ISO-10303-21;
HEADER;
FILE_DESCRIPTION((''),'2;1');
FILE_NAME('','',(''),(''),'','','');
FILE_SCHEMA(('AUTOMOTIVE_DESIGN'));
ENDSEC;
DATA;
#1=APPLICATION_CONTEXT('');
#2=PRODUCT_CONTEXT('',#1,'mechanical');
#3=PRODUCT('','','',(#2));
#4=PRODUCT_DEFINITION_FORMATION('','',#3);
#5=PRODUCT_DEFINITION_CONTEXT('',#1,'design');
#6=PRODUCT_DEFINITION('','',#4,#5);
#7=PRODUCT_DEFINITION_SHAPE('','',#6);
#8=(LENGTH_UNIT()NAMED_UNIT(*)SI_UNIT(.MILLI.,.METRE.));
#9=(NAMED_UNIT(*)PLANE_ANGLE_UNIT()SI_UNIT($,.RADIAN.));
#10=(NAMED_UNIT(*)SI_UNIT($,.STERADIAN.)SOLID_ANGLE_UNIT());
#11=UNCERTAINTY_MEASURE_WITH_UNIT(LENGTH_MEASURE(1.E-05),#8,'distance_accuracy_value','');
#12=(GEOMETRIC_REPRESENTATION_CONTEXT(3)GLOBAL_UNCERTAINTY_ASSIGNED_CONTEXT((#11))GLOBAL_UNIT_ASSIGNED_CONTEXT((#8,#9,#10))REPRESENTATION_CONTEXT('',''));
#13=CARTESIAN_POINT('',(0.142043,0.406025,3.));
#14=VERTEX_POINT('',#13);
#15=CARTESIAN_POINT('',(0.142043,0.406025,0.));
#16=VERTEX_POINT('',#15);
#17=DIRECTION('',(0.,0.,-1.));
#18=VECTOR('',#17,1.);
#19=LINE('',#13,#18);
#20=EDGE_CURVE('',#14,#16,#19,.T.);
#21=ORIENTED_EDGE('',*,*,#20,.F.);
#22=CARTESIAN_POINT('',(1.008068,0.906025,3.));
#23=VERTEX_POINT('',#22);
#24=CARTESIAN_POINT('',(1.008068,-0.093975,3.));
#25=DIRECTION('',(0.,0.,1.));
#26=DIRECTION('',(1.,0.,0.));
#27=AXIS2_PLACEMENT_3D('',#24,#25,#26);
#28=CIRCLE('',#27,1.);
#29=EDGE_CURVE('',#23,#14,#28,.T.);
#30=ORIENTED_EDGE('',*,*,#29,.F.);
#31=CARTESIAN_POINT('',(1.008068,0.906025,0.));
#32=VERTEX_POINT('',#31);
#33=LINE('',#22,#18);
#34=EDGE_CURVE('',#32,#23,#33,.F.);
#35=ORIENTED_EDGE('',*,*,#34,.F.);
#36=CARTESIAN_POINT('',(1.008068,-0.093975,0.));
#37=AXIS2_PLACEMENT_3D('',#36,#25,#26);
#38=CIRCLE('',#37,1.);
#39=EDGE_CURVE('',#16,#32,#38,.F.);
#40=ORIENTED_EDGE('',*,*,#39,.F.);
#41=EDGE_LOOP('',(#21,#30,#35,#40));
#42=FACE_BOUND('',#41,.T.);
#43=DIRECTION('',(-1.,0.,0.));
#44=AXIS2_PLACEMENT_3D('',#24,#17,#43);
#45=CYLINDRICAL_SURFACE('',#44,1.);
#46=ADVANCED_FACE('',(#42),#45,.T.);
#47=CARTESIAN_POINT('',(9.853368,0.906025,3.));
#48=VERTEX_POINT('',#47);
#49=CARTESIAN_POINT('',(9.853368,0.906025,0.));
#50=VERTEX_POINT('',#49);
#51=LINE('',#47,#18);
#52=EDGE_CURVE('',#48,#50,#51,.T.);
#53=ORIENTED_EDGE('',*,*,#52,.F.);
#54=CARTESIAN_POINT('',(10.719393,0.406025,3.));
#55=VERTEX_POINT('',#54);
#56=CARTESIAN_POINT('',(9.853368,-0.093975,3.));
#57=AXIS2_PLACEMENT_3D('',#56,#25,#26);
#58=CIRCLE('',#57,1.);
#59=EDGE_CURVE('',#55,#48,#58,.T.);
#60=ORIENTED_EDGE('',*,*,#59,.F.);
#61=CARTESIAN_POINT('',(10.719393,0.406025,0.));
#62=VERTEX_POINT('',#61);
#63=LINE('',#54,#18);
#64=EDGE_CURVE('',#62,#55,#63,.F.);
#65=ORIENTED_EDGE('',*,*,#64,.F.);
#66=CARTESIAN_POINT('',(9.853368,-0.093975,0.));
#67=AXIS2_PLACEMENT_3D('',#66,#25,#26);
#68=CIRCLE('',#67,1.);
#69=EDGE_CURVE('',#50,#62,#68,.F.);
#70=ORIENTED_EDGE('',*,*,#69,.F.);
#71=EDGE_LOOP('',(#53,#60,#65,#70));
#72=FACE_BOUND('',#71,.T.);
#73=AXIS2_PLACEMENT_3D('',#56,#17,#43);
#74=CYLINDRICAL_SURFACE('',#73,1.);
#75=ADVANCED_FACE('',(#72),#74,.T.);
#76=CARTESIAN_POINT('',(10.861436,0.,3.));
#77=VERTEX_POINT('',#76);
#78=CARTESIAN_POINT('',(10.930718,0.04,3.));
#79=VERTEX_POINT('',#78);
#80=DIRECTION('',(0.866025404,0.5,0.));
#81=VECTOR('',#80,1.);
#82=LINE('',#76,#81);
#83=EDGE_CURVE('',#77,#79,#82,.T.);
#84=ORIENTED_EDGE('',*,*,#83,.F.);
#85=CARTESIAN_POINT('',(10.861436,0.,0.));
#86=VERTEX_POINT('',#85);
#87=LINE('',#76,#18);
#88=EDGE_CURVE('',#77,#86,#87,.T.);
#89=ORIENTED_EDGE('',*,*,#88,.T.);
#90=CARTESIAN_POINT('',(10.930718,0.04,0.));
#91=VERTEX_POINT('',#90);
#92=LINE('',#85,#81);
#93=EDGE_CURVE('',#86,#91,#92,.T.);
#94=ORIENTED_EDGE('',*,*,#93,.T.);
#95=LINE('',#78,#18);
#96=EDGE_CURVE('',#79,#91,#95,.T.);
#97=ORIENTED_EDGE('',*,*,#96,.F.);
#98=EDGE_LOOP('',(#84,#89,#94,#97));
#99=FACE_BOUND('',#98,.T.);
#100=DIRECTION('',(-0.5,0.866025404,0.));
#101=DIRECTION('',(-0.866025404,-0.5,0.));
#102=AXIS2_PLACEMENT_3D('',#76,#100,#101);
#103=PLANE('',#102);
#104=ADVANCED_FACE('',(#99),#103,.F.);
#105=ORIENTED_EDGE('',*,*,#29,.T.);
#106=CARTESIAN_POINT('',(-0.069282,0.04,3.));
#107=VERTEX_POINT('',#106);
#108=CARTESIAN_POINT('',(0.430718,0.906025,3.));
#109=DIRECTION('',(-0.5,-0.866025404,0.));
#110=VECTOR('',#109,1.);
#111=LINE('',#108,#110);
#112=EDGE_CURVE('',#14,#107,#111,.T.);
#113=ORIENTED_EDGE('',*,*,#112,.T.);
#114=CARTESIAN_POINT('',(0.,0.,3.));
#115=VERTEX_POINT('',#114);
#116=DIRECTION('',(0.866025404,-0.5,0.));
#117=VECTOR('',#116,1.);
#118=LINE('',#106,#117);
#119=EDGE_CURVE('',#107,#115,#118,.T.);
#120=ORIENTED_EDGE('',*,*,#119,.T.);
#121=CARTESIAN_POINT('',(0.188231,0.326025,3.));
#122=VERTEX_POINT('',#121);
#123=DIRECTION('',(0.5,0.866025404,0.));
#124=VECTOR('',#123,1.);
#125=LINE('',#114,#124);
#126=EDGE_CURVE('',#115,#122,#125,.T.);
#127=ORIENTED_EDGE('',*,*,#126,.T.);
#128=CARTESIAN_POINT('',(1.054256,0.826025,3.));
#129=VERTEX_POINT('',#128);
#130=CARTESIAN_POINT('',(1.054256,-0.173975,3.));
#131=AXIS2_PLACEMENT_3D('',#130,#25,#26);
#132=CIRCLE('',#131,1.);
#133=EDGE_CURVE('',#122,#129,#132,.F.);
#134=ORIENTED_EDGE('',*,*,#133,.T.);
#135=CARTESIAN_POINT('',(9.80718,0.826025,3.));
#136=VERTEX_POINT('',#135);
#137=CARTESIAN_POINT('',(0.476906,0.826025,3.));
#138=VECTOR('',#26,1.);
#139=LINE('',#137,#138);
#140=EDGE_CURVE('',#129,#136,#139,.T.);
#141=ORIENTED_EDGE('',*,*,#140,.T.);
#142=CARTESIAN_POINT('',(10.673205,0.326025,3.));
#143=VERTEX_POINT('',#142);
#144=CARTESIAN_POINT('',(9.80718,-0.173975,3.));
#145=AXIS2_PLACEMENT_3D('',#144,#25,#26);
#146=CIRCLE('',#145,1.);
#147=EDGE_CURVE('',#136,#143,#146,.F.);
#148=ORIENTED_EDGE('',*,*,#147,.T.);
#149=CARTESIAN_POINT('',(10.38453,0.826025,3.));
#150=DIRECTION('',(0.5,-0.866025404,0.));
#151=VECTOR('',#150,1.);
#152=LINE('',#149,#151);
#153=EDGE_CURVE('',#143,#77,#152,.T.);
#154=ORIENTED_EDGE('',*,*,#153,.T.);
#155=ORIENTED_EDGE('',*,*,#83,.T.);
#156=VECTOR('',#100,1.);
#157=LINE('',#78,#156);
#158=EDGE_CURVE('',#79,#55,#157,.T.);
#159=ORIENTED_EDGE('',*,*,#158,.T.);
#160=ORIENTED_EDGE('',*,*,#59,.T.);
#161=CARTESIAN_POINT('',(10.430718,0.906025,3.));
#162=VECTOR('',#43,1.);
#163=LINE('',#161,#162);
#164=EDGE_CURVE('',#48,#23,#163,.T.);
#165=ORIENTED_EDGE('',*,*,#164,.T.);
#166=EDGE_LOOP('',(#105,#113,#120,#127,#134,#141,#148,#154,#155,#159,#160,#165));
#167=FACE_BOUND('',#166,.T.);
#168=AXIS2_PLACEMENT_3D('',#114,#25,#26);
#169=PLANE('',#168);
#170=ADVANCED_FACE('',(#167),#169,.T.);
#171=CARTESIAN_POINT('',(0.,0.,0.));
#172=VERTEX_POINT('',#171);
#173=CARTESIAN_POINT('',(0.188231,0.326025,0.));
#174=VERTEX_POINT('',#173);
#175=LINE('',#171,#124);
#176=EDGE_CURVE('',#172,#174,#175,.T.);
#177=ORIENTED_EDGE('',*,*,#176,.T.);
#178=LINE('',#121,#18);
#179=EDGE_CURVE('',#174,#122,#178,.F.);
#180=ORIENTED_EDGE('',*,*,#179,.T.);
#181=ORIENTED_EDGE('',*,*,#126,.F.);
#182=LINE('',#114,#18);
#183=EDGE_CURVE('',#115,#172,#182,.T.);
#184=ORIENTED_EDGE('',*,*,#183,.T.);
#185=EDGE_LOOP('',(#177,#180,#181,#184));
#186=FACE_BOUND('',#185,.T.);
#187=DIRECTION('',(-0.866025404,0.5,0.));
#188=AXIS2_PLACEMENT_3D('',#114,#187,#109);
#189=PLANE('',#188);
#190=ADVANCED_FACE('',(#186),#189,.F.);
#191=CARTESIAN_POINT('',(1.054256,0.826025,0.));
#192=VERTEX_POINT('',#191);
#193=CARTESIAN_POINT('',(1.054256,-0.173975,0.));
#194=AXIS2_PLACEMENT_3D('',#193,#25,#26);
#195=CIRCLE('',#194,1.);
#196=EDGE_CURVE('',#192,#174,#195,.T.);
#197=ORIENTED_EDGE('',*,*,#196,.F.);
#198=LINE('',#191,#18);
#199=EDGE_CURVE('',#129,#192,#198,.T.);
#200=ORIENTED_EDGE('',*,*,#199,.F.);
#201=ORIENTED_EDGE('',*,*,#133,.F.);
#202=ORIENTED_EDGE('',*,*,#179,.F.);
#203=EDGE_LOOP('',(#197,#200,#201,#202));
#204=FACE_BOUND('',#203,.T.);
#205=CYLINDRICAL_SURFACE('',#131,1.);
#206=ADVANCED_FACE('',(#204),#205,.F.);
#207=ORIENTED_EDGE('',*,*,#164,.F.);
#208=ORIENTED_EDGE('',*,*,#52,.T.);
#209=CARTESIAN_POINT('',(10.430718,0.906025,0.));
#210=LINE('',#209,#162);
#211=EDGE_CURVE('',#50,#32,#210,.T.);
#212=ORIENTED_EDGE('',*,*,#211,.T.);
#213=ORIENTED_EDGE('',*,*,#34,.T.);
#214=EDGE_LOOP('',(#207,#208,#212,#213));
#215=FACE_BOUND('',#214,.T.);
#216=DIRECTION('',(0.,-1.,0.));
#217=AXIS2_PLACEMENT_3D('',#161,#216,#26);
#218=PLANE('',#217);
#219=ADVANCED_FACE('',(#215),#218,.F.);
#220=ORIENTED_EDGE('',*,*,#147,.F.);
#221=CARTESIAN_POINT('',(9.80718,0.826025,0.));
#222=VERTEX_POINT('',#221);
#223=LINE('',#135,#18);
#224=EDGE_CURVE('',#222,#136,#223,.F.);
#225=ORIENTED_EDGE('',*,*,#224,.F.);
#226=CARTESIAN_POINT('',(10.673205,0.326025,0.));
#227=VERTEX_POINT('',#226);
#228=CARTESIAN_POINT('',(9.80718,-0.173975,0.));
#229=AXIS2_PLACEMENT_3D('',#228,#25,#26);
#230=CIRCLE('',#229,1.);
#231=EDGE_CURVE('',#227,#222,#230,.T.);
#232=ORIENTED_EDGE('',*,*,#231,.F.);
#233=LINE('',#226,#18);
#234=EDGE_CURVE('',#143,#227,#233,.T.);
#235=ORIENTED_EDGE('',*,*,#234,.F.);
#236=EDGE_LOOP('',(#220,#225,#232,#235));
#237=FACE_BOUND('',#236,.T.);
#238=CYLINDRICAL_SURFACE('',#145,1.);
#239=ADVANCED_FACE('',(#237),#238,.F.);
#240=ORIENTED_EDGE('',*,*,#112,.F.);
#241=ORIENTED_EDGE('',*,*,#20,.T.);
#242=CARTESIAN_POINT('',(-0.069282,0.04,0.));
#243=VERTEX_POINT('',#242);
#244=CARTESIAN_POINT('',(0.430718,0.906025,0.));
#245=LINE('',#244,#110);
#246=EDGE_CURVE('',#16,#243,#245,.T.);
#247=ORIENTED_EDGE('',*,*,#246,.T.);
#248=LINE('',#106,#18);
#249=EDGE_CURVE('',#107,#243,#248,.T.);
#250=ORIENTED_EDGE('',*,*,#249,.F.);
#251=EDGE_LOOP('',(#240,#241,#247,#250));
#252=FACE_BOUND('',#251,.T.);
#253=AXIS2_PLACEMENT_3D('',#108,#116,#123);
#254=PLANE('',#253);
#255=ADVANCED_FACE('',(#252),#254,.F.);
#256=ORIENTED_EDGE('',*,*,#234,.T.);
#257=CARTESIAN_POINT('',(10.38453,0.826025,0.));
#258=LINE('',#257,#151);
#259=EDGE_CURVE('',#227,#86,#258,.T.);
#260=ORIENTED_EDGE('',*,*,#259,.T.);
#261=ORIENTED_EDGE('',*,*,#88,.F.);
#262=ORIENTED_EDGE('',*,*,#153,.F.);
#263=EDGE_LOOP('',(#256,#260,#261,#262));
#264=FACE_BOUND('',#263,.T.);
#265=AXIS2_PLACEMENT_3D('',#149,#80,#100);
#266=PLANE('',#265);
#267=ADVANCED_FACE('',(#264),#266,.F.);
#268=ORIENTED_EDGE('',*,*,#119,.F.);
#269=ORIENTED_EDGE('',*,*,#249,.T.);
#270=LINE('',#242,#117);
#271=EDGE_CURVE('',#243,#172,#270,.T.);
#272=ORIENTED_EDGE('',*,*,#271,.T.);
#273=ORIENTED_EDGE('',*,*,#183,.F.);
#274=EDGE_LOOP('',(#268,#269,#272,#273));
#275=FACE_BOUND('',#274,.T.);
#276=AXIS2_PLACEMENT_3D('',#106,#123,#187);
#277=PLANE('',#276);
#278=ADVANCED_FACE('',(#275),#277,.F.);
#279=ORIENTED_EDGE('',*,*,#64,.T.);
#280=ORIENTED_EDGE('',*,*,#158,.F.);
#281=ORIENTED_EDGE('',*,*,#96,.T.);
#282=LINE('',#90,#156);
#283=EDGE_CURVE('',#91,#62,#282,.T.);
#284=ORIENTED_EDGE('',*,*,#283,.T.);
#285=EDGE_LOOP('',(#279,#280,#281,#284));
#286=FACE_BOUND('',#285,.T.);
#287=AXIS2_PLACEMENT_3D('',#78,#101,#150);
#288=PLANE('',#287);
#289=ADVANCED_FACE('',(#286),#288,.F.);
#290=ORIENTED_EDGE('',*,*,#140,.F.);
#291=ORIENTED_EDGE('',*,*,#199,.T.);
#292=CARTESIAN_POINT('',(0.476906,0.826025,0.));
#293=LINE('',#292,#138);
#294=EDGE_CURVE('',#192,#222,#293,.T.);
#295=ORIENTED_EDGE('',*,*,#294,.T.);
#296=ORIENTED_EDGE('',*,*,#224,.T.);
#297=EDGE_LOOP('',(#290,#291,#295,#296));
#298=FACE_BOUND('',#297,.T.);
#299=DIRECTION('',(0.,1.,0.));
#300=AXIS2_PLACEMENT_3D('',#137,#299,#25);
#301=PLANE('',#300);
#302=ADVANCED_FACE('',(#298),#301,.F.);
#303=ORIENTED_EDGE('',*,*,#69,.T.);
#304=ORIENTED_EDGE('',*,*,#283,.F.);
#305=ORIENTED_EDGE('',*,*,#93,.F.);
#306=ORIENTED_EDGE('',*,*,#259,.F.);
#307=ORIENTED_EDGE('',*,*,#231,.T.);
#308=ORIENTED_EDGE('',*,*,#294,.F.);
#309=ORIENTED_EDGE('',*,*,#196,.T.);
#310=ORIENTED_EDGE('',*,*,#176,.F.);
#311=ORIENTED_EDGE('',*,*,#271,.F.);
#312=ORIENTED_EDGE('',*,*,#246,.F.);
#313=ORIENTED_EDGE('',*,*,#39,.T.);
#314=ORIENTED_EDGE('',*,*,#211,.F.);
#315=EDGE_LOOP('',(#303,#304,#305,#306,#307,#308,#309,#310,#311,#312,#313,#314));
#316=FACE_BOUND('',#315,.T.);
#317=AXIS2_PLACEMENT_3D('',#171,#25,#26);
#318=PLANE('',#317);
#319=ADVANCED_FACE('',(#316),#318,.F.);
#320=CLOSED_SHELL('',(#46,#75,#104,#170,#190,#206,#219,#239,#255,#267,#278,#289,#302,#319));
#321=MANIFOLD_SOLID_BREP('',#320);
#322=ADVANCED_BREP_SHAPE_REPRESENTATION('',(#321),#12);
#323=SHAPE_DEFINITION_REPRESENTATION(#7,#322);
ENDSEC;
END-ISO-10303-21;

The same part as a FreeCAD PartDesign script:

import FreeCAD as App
import Part
import Sketcher
Q = App.Units.Quantity


def edges_at(feature, points):
    """Names of the edges that pass closest to the given points."""
    edges = feature.Shape.Edges
    near = lambda p: min(range(len(edges)), key=lambda i: edges[i].distToShape(Part.Vertex(*p))[0])
    return sorted({f"Edge{near(p) + 1}" for p in points})


def add_polygon(sketch, points):
    """Adds a closed chain of lines whose ends are joined by coincident constraints."""
    first, n = sketch.GeometryCount, len(points)
    for a, b in zip(points, points[1:] + points[:1]):
        sketch.addGeometry(Part.LineSegment(App.Vector(*a, 0), App.Vector(*b, 0)), False)
    for i in range(n):
        sketch.addConstraint(Sketcher.Constraint("Coincident", first + i, 2, first + (i + 1) % n, 1))

doc = App.newDocument("Part")
body = doc.addObject("PartDesign::Body", "Body")

sketch1 = body.newObject("Sketcher::SketchObject", "Sketch")
sketch1.AttachmentSupport = (doc.getObject("XY_Plane"), [""])
sketch1.MapMode = "FlatFace"
add_polygon(sketch1, [(0, 0), (0.476906, 0.826025), (10.38453, 0.826025), (10.861436, 0), (10.930718, 0.04), (10.430718, 0.906025), (0.430718, 0.906025), (-0.069282, 0.04)])
sketch1.addConstraint([
    Sketcher.Constraint("Horizontal", 1),
    Sketcher.Constraint("Horizontal", 5),
    Sketcher.Constraint("Coincident", 7, 2, -1, 1),
    Sketcher.Constraint("PointOnObject", 2, 2, -1),
    Sketcher.Constraint("Perpendicular", 2, 3),
    Sketcher.Constraint("Perpendicular", 3, 4),
    Sketcher.Constraint("Parallel", 0, 6),
    Sketcher.Constraint("Perpendicular", 6, 7),
    Sketcher.Constraint("Horizontal", 3, 2, 6, 2),
    Sketcher.Constraint("Equal", 0, 2),
    Sketcher.Constraint("DistanceX", 5, 2, 5, 1, Q("10 mm")),
    Sketcher.Constraint("Angle", 0, Q("60 deg")),
    Sketcher.Constraint("Distance", 4, Q("1 mm")),
    Sketcher.Constraint("Distance", 3, Q("0.08 mm")),
    Sketcher.Constraint("DistanceY", 1, 2, 4, 2, Q("0.08 mm")),
])
pad1 = body.newObject("PartDesign::Pad", "Pad")
pad1.Profile = sketch1
pad1.Length = 3
doc.recompute()

fillet = body.newObject("PartDesign::Fillet", "Fillet")
fillet.Base = (pad1, edges_at(pad1, [
    (0.431, 0.906, 1.5),
    (10.431, 0.906, 1.5),
    (10.385, 0.826, 1.5),
    (0.477, 0.826, 1.5),
]))
fillet.Radius = 1

doc.recompute()
